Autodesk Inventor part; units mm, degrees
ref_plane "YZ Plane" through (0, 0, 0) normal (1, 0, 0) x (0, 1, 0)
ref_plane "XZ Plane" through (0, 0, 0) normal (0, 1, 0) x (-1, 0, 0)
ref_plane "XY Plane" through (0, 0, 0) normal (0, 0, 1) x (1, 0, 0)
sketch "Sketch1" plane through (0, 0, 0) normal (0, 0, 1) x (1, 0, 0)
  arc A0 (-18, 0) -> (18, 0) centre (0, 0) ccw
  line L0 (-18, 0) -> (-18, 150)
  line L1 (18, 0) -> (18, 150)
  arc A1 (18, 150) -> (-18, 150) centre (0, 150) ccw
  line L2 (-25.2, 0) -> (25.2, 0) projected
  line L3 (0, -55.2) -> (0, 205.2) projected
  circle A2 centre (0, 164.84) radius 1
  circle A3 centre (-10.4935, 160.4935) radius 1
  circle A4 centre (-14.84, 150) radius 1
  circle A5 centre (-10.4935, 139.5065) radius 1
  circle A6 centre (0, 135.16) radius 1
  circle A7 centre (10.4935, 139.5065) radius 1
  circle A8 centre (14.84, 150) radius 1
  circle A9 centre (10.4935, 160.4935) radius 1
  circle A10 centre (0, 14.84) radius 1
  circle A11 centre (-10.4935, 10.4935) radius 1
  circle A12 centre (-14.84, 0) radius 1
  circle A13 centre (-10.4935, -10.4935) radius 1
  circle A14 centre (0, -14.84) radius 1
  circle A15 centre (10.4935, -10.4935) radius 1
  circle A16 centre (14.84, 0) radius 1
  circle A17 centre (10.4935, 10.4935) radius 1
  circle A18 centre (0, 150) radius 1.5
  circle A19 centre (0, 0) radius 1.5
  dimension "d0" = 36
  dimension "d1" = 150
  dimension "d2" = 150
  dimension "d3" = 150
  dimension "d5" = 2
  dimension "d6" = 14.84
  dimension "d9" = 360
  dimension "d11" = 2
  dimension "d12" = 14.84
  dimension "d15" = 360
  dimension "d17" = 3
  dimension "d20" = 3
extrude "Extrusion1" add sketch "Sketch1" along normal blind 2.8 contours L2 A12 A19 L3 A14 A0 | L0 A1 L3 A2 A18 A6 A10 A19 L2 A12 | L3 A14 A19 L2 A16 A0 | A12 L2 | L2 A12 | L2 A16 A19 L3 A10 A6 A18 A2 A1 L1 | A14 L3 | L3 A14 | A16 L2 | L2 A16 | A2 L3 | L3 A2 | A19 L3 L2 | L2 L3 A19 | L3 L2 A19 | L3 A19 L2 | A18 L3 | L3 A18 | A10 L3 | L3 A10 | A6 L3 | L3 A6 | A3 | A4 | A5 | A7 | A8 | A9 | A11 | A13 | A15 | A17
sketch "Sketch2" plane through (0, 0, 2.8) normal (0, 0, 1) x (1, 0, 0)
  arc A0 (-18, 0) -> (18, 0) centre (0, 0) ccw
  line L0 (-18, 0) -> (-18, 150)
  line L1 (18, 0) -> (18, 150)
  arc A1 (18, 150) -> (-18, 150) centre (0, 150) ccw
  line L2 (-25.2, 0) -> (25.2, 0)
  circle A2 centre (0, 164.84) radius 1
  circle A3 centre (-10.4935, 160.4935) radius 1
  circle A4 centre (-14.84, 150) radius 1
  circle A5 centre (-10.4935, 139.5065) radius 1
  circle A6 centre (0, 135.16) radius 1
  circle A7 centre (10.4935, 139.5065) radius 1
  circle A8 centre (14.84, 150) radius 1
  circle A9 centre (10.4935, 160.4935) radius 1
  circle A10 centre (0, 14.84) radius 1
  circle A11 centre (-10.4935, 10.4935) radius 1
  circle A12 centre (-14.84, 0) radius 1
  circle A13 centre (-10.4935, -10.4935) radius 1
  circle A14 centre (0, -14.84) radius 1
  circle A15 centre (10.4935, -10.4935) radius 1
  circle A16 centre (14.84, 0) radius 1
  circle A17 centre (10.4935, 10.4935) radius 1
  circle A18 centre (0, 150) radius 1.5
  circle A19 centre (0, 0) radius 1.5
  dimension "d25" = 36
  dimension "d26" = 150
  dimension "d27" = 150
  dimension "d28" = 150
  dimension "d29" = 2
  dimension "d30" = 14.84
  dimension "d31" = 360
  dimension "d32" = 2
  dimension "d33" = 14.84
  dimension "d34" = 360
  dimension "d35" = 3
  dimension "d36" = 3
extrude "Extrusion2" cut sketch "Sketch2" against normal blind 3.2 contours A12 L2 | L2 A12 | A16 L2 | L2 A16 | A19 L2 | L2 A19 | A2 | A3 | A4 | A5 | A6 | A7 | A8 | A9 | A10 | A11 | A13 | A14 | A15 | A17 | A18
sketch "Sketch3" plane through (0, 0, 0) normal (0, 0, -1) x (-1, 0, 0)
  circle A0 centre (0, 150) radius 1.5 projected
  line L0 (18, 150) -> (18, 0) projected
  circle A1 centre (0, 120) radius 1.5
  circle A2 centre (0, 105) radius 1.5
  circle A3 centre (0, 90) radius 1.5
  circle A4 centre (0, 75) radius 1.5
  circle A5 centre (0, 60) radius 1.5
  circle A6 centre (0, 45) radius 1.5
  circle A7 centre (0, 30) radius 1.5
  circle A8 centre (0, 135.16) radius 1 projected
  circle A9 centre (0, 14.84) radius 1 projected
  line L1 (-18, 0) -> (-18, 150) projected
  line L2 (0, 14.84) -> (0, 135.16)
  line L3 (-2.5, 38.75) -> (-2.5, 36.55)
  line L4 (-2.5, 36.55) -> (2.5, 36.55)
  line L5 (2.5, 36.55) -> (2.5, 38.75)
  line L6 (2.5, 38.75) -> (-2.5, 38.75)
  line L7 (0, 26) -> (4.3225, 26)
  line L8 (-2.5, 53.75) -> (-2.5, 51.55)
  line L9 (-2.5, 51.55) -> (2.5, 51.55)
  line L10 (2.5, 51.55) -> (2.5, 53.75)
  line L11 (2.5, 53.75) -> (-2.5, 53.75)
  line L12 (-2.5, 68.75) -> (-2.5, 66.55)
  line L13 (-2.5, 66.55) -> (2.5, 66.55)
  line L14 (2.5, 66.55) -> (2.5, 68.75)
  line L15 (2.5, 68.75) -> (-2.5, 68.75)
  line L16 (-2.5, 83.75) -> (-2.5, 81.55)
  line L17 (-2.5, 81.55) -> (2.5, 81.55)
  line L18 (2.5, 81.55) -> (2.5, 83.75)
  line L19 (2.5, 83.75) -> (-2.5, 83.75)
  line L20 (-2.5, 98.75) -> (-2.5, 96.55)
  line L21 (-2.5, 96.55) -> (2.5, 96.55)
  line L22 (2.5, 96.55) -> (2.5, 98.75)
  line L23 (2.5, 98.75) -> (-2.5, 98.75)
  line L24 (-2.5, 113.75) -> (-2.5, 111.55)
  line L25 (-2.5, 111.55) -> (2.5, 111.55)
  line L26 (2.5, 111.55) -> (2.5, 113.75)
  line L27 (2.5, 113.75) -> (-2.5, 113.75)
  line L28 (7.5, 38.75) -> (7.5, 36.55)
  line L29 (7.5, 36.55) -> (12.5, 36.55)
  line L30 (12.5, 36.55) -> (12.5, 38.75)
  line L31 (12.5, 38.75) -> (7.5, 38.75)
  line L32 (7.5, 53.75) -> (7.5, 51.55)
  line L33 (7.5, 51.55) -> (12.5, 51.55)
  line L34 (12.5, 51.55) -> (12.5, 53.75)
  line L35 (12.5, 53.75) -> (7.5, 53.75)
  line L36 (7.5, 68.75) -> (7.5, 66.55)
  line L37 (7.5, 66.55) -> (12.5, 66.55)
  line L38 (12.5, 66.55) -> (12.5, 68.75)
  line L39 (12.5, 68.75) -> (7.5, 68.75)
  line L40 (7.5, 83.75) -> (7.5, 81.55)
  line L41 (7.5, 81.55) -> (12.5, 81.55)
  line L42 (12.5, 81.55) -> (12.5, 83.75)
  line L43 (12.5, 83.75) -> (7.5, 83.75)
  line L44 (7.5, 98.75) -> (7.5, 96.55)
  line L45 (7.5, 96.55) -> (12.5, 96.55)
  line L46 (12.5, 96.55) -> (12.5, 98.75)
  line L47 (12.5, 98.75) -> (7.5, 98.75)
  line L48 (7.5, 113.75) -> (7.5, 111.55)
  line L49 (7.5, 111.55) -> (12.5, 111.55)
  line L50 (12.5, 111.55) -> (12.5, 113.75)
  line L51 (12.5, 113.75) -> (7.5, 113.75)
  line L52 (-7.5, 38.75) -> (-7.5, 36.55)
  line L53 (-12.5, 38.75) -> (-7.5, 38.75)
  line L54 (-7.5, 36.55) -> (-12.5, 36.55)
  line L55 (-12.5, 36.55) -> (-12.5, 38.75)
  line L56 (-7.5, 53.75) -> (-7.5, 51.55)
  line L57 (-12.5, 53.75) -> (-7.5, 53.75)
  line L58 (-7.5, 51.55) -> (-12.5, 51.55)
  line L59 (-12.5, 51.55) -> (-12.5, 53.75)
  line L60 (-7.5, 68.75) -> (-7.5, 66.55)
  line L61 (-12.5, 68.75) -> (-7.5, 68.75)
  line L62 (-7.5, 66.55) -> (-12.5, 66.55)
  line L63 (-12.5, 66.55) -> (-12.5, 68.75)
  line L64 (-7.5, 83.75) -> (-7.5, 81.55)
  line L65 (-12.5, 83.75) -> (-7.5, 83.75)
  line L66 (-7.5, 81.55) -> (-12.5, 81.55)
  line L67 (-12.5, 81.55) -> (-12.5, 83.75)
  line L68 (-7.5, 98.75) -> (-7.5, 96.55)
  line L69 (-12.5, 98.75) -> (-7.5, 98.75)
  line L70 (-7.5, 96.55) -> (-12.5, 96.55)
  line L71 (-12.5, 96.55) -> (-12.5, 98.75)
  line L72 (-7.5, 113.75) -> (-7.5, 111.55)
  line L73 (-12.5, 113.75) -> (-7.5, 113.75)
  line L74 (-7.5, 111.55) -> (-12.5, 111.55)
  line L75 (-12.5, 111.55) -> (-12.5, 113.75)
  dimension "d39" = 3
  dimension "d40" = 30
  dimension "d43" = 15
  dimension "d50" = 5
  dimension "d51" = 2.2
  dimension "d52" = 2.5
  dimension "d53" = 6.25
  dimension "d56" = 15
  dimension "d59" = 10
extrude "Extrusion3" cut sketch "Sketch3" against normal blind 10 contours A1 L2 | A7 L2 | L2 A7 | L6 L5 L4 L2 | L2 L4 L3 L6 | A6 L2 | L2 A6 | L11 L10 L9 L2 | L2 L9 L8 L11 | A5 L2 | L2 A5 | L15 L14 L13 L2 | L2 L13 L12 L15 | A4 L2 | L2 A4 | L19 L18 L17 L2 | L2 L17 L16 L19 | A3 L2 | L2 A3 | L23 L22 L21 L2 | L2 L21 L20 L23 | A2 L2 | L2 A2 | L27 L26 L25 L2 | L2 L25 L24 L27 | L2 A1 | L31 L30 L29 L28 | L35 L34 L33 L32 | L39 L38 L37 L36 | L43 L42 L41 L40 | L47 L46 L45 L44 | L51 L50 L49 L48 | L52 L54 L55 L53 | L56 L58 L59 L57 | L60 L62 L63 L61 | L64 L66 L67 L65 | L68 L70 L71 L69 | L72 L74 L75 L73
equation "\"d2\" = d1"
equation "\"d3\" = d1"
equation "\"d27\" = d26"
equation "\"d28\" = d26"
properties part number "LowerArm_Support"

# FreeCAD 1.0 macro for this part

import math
import FreeCAD as App
import Part
import Sketcher
from FreeCAD import Vector

doc = App.newDocument("Part")
body = doc.addObject("PartDesign::Body", "Body")

sketch1 = body.newObject("Sketcher::SketchObject", "Sketch")
sketch1.AttachmentSupport = (doc.getObject("XY_Plane"), [""])
sketch1.MapMode = "FlatFace"
sketch1.addGeometry([
    Part.ArcOfCircle(Part.Circle(Vector(0, 0, 0), Vector(0, 0, 1), 18), math.radians(180), math.radians(360)),
    Part.LineSegment(Vector(18, 0, 0), Vector(18, 150, 0)),
    Part.ArcOfCircle(Part.Circle(Vector(0, 150, 0), Vector(0, 0, 1), 18), math.radians(0), math.radians(180)),
    Part.LineSegment(Vector(-18, 150, 0), Vector(-18, 0, 0)),
], False)
sketch1.addConstraint([
    Sketcher.Constraint("Tangent", 0, 2, 1, 1),
    Sketcher.Constraint("Tangent", 1, 2, 2, 1),
    Sketcher.Constraint("Tangent", 2, 2, 3, 1),
    Sketcher.Constraint("Tangent", 3, 2, 0, 1),
    Sketcher.Constraint("Vertical", 1),
    Sketcher.Constraint("Vertical", 3),
    Sketcher.Constraint("Coincident", 0, 3, -1, 1),
    Sketcher.Constraint("Radius", 0, 18.0),
    Sketcher.Constraint("DistanceY", 1, 1, 1, 2, 150.0),
])
pad1 = body.newObject("PartDesign::Pad", "Pad")
pad1.Profile = sketch1
pad1.Length = 2.8

sketch2 = body.newObject("Sketcher::SketchObject", "Sketch001")
sketch2.AttachmentSupport = (doc.getObject("XY_Plane"), [""])
sketch2.MapMode = "FlatFace"
sketch2.AttachmentOffset = App.Placement(Vector(0, 0, 2.8), App.Rotation())
sketch2.addGeometry([
    Part.Circle(Vector(-14.8, 0, 0), Vector(0, 0, 1), 1),
    Part.Circle(Vector(14.8, 0, 0), Vector(0, 0, 1), 1),
    Part.Circle(Vector(0, 0, 0), Vector(0, 0, 1), 1.5),
    Part.Circle(Vector(0, 164.8, 0), Vector(0, 0, 1), 1),
    Part.Circle(Vector(-10.5, 160.5, 0), Vector(0, 0, 1), 1),
    Part.Circle(Vector(-14.8, 150, 0), Vector(0, 0, 1), 1),
    Part.Circle(Vector(-10.5, 139.5, 0), Vector(0, 0, 1), 1),
    Part.Circle(Vector(0, 135.2, 0), Vector(0, 0, 1), 1),
    Part.Circle(Vector(10.5, 139.5, 0), Vector(0, 0, 1), 1),
    Part.Circle(Vector(14.8, 150, 0), Vector(0, 0, 1), 1),
    Part.Circle(Vector(10.5, 160.5, 0), Vector(0, 0, 1), 1),
    Part.Circle(Vector(0, 14.8, 0), Vector(0, 0, 1), 1),
    Part.Circle(Vector(-10.5, 10.5, 0), Vector(0, 0, 1), 1),
    Part.Circle(Vector(-10.5, -10.5, 0), Vector(0, 0, 1), 1),
    Part.Circle(Vector(0, -14.8, 0), Vector(0, 0, 1), 1),
    Part.Circle(Vector(10.5, -10.5, 0), Vector(0, 0, 1), 1),
    Part.Circle(Vector(10.5, 10.5, 0), Vector(0, 0, 1), 1),
    Part.Circle(Vector(0, 150, 0), Vector(0, 0, 1), 1.5),
], False)
sketch2.addConstraint([
    Sketcher.Constraint("Coincident", 2, 3, -1, 1),
    Sketcher.Constraint("Equal", 0, 1),
    Sketcher.Constraint("Equal", 1, 3),
    Sketcher.Constraint("Equal", 3, 4),
    Sketcher.Constraint("Equal", 4, 5),
    Sketcher.Constraint("Equal", 5, 6),
    Sketcher.Constraint("Equal", 6, 7),
    Sketcher.Constraint("Equal", 7, 8),
    Sketcher.Constraint("Equal", 8, 9),
    Sketcher.Constraint("Equal", 9, 10),
    Sketcher.Constraint("Equal", 10, 11),
    Sketcher.Constraint("Equal", 11, 12),
    Sketcher.Constraint("Equal", 12, 13),
    Sketcher.Constraint("Equal", 13, 14),
    Sketcher.Constraint("Equal", 14, 15),
    Sketcher.Constraint("Equal", 15, 16),
    Sketcher.Constraint("Equal", 2, 17),
    Sketcher.Constraint("Symmetric", 0, 3, 1, 3, -1, 1),
    Sketcher.Constraint("Symmetric", 11, 3, 14, 3, -1, 1),
    Sketcher.Constraint("Symmetric", 12, 3, 15, 3, -1, 1),
    Sketcher.Constraint("Symmetric", 13, 3, 16, 3, -1, 1),
    Sketcher.Constraint("Symmetric", 6, 3, 8, 3, -2),
    Sketcher.Constraint("Symmetric", 5, 3, 9, 3, -2),
    Sketcher.Constraint("Symmetric", 4, 3, 10, 3, -2),
    Sketcher.Constraint("Symmetric", 13, 3, 15, 3, -2),
    Sketcher.Constraint("PointOnObject", 0, 3, -1),
    Sketcher.Constraint("PointOnObject", 3, 3, -2),
    Sketcher.Constraint("PointOnObject", 7, 3, -2),
    Sketcher.Constraint("PointOnObject", 11, 3, -2),
    Sketcher.Constraint("PointOnObject", 17, 3, -2),
    Sketcher.Constraint("Horizontal", 9, 3, 17, 3),
    Sketcher.Constraint("Vertical", 0, 3, 5, 3),
    Sketcher.Constraint("Vertical", 4, 3, 6, 3),
    Sketcher.Constraint("Vertical", 6, 3, 12, 3),
    Sketcher.Constraint("Diameter", 0, 2.0),
    Sketcher.Constraint("Diameter", 2, 3.0),
    Sketcher.Constraint("DistanceY", -1, 1, 5, 3, 150.0),
    Sketcher.Constraint("DistanceX", 0, 3, -1, 1, 14.84),
    Sketcher.Constraint("DistanceY", -1, 1, 11, 3, 14.84),
    Sketcher.Constraint("DistanceY", 5, 3, 3, 3, 14.84),
    Sketcher.Constraint("DistanceY", 7, 3, 5, 3, 14.84),
    Sketcher.Constraint("DistanceY", 6, 3, 4, 3, 20.987),
    Sketcher.Constraint("DistanceX", 6, 3, 8, 3, 20.987),
    Sketcher.Constraint("DistanceY", 13, 3, 12, 3, 20.987),
    Sketcher.Constraint("DistanceY", -1, 1, 4, 3, 160.4935),
])
pocket1 = body.newObject("PartDesign::Pocket", "Pocket")
pocket1.Profile = sketch2
pocket1.Length = 3.2

sketch3 = body.newObject("Sketcher::SketchObject", "Sketch002")
sketch3.AttachmentSupport = (doc.getObject("XY_Plane"), [""])
sketch3.MapMode = "FlatFace"
sketch3.addGeometry([
    Part.Circle(Vector(0, 120, 0), Vector(0, 0, 1), 1.5),
    Part.Circle(Vector(0, 30, 0), Vector(0, 0, 1), 1.5),
    Part.LineSegment(Vector(-2.5, 38.8, 0), Vector(2.5, 38.8, 0)),
    Part.LineSegment(Vector(2.5, 38.8, 0), Vector(2.5, 36.5, 0)),
    Part.LineSegment(Vector(2.5, 36.5, 0), Vector(-2.5, 36.5, 0)),
    Part.LineSegment(Vector(-2.5, 36.5, 0), Vector(-2.5, 38.8, 0)),
    Part.Circle(Vector(0, 45, 0), Vector(0, 0, 1), 1.5),
    Part.LineSegment(Vector(-2.5, 53.8, 0), Vector(2.5, 53.8, 0)),
    Part.LineSegment(Vector(2.5, 53.8, 0), Vector(2.5, 51.5, 0)),
    Part.LineSegment(Vector(2.5, 51.5, 0), Vector(-2.5, 51.5, 0)),
    Part.LineSegment(Vector(-2.5, 51.5, 0), Vector(-2.5, 53.8, 0)),
    Part.Circle(Vector(0, 60, 0), Vector(0, 0, 1), 1.5),
    Part.LineSegment(Vector(-2.5, 68.8, 0), Vector(2.5, 68.8, 0)),
    Part.LineSegment(Vector(2.5, 68.8, 0), Vector(2.5, 66.5, 0)),
    Part.LineSegment(Vector(2.5, 66.5, 0), Vector(-2.5, 66.5, 0)),
    Part.LineSegment(Vector(-2.5, 66.5, 0), Vector(-2.5, 68.8, 0)),
    Part.Circle(Vector(0, 75, 0), Vector(0, 0, 1), 1.5),
    Part.LineSegment(Vector(-2.5, 83.8, 0), Vector(2.5, 83.8, 0)),
    Part.LineSegment(Vector(2.5, 83.8, 0), Vector(2.5, 81.5, 0)),
    Part.LineSegment(Vector(2.5, 81.5, 0), Vector(-2.5, 81.5, 0)),
    Part.LineSegment(Vector(-2.5, 81.5, 0), Vector(-2.5, 83.8, 0)),
    Part.Circle(Vector(0, 90, 0), Vector(0, 0, 1), 1.5),
    Part.LineSegment(Vector(-2.5, 98.8, 0), Vector(2.5, 98.8, 0)),
    Part.LineSegment(Vector(2.5, 98.8, 0), Vector(2.5, 96.5, 0)),
    Part.LineSegment(Vector(2.5, 96.5, 0), Vector(-2.5, 96.5, 0)),
    Part.LineSegment(Vector(-2.5, 96.5, 0), Vector(-2.5, 98.8, 0)),
    Part.Circle(Vector(0, 105, 0), Vector(0, 0, 1), 1.5),
    Part.LineSegment(Vector(-2.5, 113.8, 0), Vector(2.5, 113.8, 0)),
    Part.LineSegment(Vector(2.5, 113.8, 0), Vector(2.5, 111.5, 0)),
    Part.LineSegment(Vector(2.5, 111.5, 0), Vector(-2.5, 111.5, 0)),
    Part.LineSegment(Vector(-2.5, 111.5, 0), Vector(-2.5, 113.8, 0)),
    Part.LineSegment(Vector(-12.5, 38.8, 0), Vector(-7.5, 38.8, 0)),
    Part.LineSegment(Vector(-7.5, 38.8, 0), Vector(-7.5, 36.5, 0)),
    Part.LineSegment(Vector(-7.5, 36.5, 0), Vector(-12.5, 36.5, 0)),
    Part.LineSegment(Vector(-12.5, 36.5, 0), Vector(-12.5, 38.8, 0)),
    Part.LineSegment(Vector(-12.5, 53.8, 0), Vector(-7.5, 53.8, 0)),
    Part.LineSegment(Vector(-7.5, 53.8, 0), Vector(-7.5, 51.5, 0)),
    Part.LineSegment(Vector(-7.5, 51.5, 0), Vector(-12.5, 51.5, 0)),
    Part.LineSegment(Vector(-12.5, 51.5, 0), Vector(-12.5, 53.8, 0)),
    Part.LineSegment(Vector(-12.5, 68.8, 0), Vector(-7.5, 68.8, 0)),
    Part.LineSegment(Vector(-7.5, 68.8, 0), Vector(-7.5, 66.5, 0)),
    Part.LineSegment(Vector(-7.5, 66.5, 0), Vector(-12.5, 66.5, 0)),
    Part.LineSegment(Vector(-12.5, 66.5, 0), Vector(-12.5, 68.8, 0)),
    Part.LineSegment(Vector(-12.5, 83.8, 0), Vector(-7.5, 83.8, 0)),
    Part.LineSegment(Vector(-7.5, 83.8, 0), Vector(-7.5, 81.5, 0)),
    Part.LineSegment(Vector(-7.5, 81.5, 0), Vector(-12.5, 81.5, 0)),
    Part.LineSegment(Vector(-12.5, 81.5, 0), Vector(-12.5, 83.8, 0)),
    Part.LineSegment(Vector(-12.5, 98.8, 0), Vector(-7.5, 98.8, 0)),
    Part.LineSegment(Vector(-7.5, 98.8, 0), Vector(-7.5, 96.5, 0)),
    Part.LineSegment(Vector(-7.5, 96.5, 0), Vector(-12.5, 96.5, 0)),
    Part.LineSegment(Vector(-12.5, 96.5, 0), Vector(-12.5, 98.8, 0)),
    Part.LineSegment(Vector(-12.5, 113.8, 0), Vector(-7.5, 113.8, 0)),
    Part.LineSegment(Vector(-7.5, 113.8, 0), Vector(-7.5, 111.5, 0)),
    Part.LineSegment(Vector(-7.5, 111.5, 0), Vector(-12.5, 111.5, 0)),
    Part.LineSegment(Vector(-12.5, 111.5, 0), Vector(-12.5, 113.8, 0)),
    Part.LineSegment(Vector(7.5, 36.5, 0), Vector(7.5, 38.8, 0)),
    Part.LineSegment(Vector(7.5, 38.8, 0), Vector(12.5, 38.8, 0)),
    Part.LineSegment(Vector(12.5, 38.8, 0), Vector(12.5, 36.5, 0)),
    Part.LineSegment(Vector(12.5, 36.5, 0), Vector(7.5, 36.5, 0)),
    Part.LineSegment(Vector(7.5, 51.5, 0), Vector(7.5, 53.8, 0)),
    Part.LineSegment(Vector(7.5, 53.8, 0), Vector(12.5, 53.8, 0)),
    Part.LineSegment(Vector(12.5, 53.8, 0), Vector(12.5, 51.5, 0)),
    Part.LineSegment(Vector(12.5, 51.5, 0), Vector(7.5, 51.5, 0)),
    Part.LineSegment(Vector(7.5, 66.5, 0), Vector(7.5, 68.8, 0)),
    Part.LineSegment(Vector(7.5, 68.8, 0), Vector(12.5, 68.8, 0)),
    Part.LineSegment(Vector(12.5, 68.8, 0), Vector(12.5, 66.5, 0)),
    Part.LineSegment(Vector(12.5, 66.5, 0), Vector(7.5, 66.5, 0)),
    Part.LineSegment(Vector(7.5, 81.5, 0), Vector(7.5, 83.8, 0)),
    Part.LineSegment(Vector(7.5, 83.8, 0), Vector(12.5, 83.8, 0)),
    Part.LineSegment(Vector(12.5, 83.8, 0), Vector(12.5, 81.5, 0)),
    Part.LineSegment(Vector(12.5, 81.5, 0), Vector(7.5, 81.5, 0)),
    Part.LineSegment(Vector(7.5, 96.5, 0), Vector(7.5, 98.8, 0)),
    Part.LineSegment(Vector(7.5, 98.8, 0), Vector(12.5, 98.8, 0)),
    Part.LineSegment(Vector(12.5, 98.8, 0), Vector(12.5, 96.5, 0)),
    Part.LineSegment(Vector(12.5, 96.5, 0), Vector(7.5, 96.5, 0)),
    Part.LineSegment(Vector(7.5, 111.5, 0), Vector(7.5, 113.8, 0)),
    Part.LineSegment(Vector(7.5, 113.8, 0), Vector(12.5, 113.8, 0)),
    Part.LineSegment(Vector(12.5, 113.8, 0), Vector(12.5, 111.5, 0)),
    Part.LineSegment(Vector(12.5, 111.5, 0), Vector(7.5, 111.5, 0)),
], False)
sketch3.addConstraint([
    Sketcher.Constraint("Coincident", 2, 2, 3, 1),
    Sketcher.Constraint("Coincident", 3, 2, 4, 1),
    Sketcher.Constraint("Coincident", 4, 2, 5, 1),
    Sketcher.Constraint("Coincident", 5, 2, 2, 1),
    Sketcher.Constraint("Coincident", 7, 2, 8, 1),
    Sketcher.Constraint("Coincident", 8, 2, 9, 1),
    Sketcher.Constraint("Coincident", 9, 2, 10, 1),
    Sketcher.Constraint("Coincident", 10, 2, 7, 1),
    Sketcher.Constraint("Coincident", 12, 2, 13, 1),
    Sketcher.Constraint("Coincident", 13, 2, 14, 1),
    Sketcher.Constraint("Coincident", 14, 2, 15, 1),
    Sketcher.Constraint("Coincident", 15, 2, 12, 1),
    Sketcher.Constraint("Coincident", 17, 2, 18, 1),
    Sketcher.Constraint("Coincident", 18, 2, 19, 1),
    Sketcher.Constraint("Coincident", 19, 2, 20, 1),
    Sketcher.Constraint("Coincident", 20, 2, 17, 1),
    Sketcher.Constraint("Coincident", 22, 2, 23, 1),
    Sketcher.Constraint("Coincident", 23, 2, 24, 1),
    Sketcher.Constraint("Coincident", 24, 2, 25, 1),
    Sketcher.Constraint("Coincident", 25, 2, 22, 1),
    Sketcher.Constraint("Coincident", 27, 2, 28, 1),
    Sketcher.Constraint("Coincident", 28, 2, 29, 1),
    Sketcher.Constraint("Coincident", 29, 2, 30, 1),
    Sketcher.Constraint("Coincident", 30, 2, 27, 1),
    Sketcher.Constraint("Coincident", 31, 2, 32, 1),
    Sketcher.Constraint("Coincident", 32, 2, 33, 1),
    Sketcher.Constraint("Coincident", 33, 2, 34, 1),
    Sketcher.Constraint("Coincident", 34, 2, 31, 1),
    Sketcher.Constraint("Coincident", 35, 2, 36, 1),
    Sketcher.Constraint("Coincident", 36, 2, 37, 1),
    Sketcher.Constraint("Coincident", 37, 2, 38, 1),
    Sketcher.Constraint("Coincident", 38, 2, 35, 1),
    Sketcher.Constraint("Coincident", 39, 2, 40, 1),
    Sketcher.Constraint("Coincident", 40, 2, 41, 1),
    Sketcher.Constraint("Coincident", 41, 2, 42, 1),
    Sketcher.Constraint("Coincident", 42, 2, 39, 1),
    Sketcher.Constraint("Coincident", 43, 2, 44, 1),
    Sketcher.Constraint("Coincident", 44, 2, 45, 1),
    Sketcher.Constraint("Coincident", 45, 2, 46, 1),
    Sketcher.Constraint("Coincident", 46, 2, 43, 1),
    Sketcher.Constraint("Coincident", 47, 2, 48, 1),
    Sketcher.Constraint("Coincident", 48, 2, 49, 1),
    Sketcher.Constraint("Coincident", 49, 2, 50, 1),
    Sketcher.Constraint("Coincident", 50, 2, 47, 1),
    Sketcher.Constraint("Coincident", 51, 2, 52, 1),
    Sketcher.Constraint("Coincident", 52, 2, 53, 1),
    Sketcher.Constraint("Coincident", 53, 2, 54, 1),
    Sketcher.Constraint("Coincident", 54, 2, 51, 1),
    Sketcher.Constraint("Coincident", 55, 2, 56, 1),
    Sketcher.Constraint("Coincident", 56, 2, 57, 1),
    Sketcher.Constraint("Coincident", 57, 2, 58, 1),
    Sketcher.Constraint("Coincident", 58, 2, 55, 1),
    Sketcher.Constraint("Coincident", 59, 2, 60, 1),
    Sketcher.Constraint("Coincident", 60, 2, 61, 1),
    Sketcher.Constraint("Coincident", 61, 2, 62, 1),
    Sketcher.Constraint("Coincident", 62, 2, 59, 1),
    Sketcher.Constraint("Coincident", 63, 2, 64, 1),
    Sketcher.Constraint("Coincident", 64, 2, 65, 1),
    Sketcher.Constraint("Coincident", 65, 2, 66, 1),
    Sketcher.Constraint("Coincident", 66, 2, 63, 1),
    Sketcher.Constraint("Coincident", 67, 2, 68, 1),
    Sketcher.Constraint("Coincident", 68, 2, 69, 1),
    Sketcher.Constraint("Coincident", 69, 2, 70, 1),
    Sketcher.Constraint("Coincident", 70, 2, 67, 1),
    Sketcher.Constraint("Coincident", 71, 2, 72, 1),
    Sketcher.Constraint("Coincident", 72, 2, 73, 1),
    Sketcher.Constraint("Coincident", 73, 2, 74, 1),
    Sketcher.Constraint("Coincident", 74, 2, 71, 1),
    Sketcher.Constraint("Coincident", 75, 2, 76, 1),
    Sketcher.Constraint("Coincident", 76, 2, 77, 1),
    Sketcher.Constraint("Coincident", 77, 2, 78, 1),
    Sketcher.Constraint("Coincident", 78, 2, 75, 1),
    Sketcher.Constraint("Horizontal", 2),
    Sketcher.Constraint("Vertical", 3),
    Sketcher.Constraint("Horizontal", 4),
    Sketcher.Constraint("Vertical", 5),
    Sketcher.Constraint("Horizontal", 7),
    Sketcher.Constraint("Vertical", 8),
    Sketcher.Constraint("Horizontal", 9),
    Sketcher.Constraint("Vertical", 10),
    Sketcher.Constraint("Horizontal", 12),
    Sketcher.Constraint("Vertical", 13),
    Sketcher.Constraint("Horizontal", 14),
    Sketcher.Constraint("Vertical", 15),
    Sketcher.Constraint("Horizontal", 17),
    Sketcher.Constraint("Vertical", 18),
    Sketcher.Constraint("Horizontal", 19),
    Sketcher.Constraint("Vertical", 20),
    Sketcher.Constraint("Horizontal", 22),
    Sketcher.Constraint("Vertical", 23),
    Sketcher.Constraint("Horizontal", 24),
    Sketcher.Constraint("Vertical", 25),
    Sketcher.Constraint("Horizontal", 27),
    Sketcher.Constraint("Vertical", 28),
    Sketcher.Constraint("Horizontal", 29),
    Sketcher.Constraint("Vertical", 30),
    Sketcher.Constraint("Horizontal", 31),
    Sketcher.Constraint("Vertical", 32),
    Sketcher.Constraint("Horizontal", 33),
    Sketcher.Constraint("Vertical", 34),
    Sketcher.Constraint("Horizontal", 35),
    Sketcher.Constraint("Vertical", 36),
    Sketcher.Constraint("Horizontal", 37),
    Sketcher.Constraint("Vertical", 38),
    Sketcher.Constraint("Horizontal", 39),
    Sketcher.Constraint("Vertical", 40),
    Sketcher.Constraint("Horizontal", 41),
    Sketcher.Constraint("Vertical", 42),
    Sketcher.Constraint("Horizontal", 43),
    Sketcher.Constraint("Vertical", 44),
    Sketcher.Constraint("Horizontal", 45),
    Sketcher.Constraint("Vertical", 46),
    Sketcher.Constraint("Horizontal", 47),
    Sketcher.Constraint("Vertical", 48),
    Sketcher.Constraint("Horizontal", 49),
    Sketcher.Constraint("Vertical", 50),
    Sketcher.Constraint("Horizontal", 51),
    Sketcher.Constraint("Vertical", 52),
    Sketcher.Constraint("Horizontal", 53),
    Sketcher.Constraint("Vertical", 54),
    Sketcher.Constraint("Vertical", 55),
    Sketcher.Constraint("Horizontal", 56),
    Sketcher.Constraint("Vertical", 57),
    Sketcher.Constraint("Horizontal", 58),
    Sketcher.Constraint("Vertical", 59),
    Sketcher.Constraint("Horizontal", 60),
    Sketcher.Constraint("Vertical", 61),
    Sketcher.Constraint("Horizontal", 62),
    Sketcher.Constraint("Vertical", 63),
    Sketcher.Constraint("Horizontal", 64),
    Sketcher.Constraint("Vertical", 65),
    Sketcher.Constraint("Horizontal", 66),
    Sketcher.Constraint("Vertical", 67),
    Sketcher.Constraint("Horizontal", 68),
    Sketcher.Constraint("Vertical", 69),
    Sketcher.Constraint("Horizontal", 70),
    Sketcher.Constraint("Vertical", 71),
    Sketcher.Constraint("Horizontal", 72),
    Sketcher.Constraint("Vertical", 73),
    Sketcher.Constraint("Horizontal", 74),
    Sketcher.Constraint("Vertical", 75),
    Sketcher.Constraint("Horizontal", 76),
    Sketcher.Constraint("Vertical", 77),
    Sketcher.Constraint("Horizontal", 78),
    Sketcher.Constraint("Equal", 0, 1),
    Sketcher.Constraint("Equal", 1, 6),
    Sketcher.Constraint("Equal", 6, 11),
    Sketcher.Constraint("Equal", 11, 16),
    Sketcher.Constraint("Equal", 16, 21),
    Sketcher.Constraint("Equal", 21, 26),
    Sketcher.Constraint("Symmetric", 31, 2, 55, 2, -2),
    Sketcher.Constraint("Symmetric", 33, 2, 57, 2, -2),
    Sketcher.Constraint("Symmetric", 35, 2, 59, 2, -2),
    Sketcher.Constraint("Symmetric", 37, 2, 61, 2, -2),
    Sketcher.Constraint("Symmetric", 39, 2, 63, 2, -2),
    Sketcher.Constraint("Symmetric", 41, 2, 65, 2, -2),
    Sketcher.Constraint("Symmetric", 43, 2, 67, 2, -2),
    Sketcher.Constraint("Symmetric", 45, 2, 69, 2, -2),
    Sketcher.Constraint("Symmetric", 47, 2, 71, 2, -2),
    Sketcher.Constraint("Symmetric", 49, 2, 73, 2, -2),
    Sketcher.Constraint("Symmetric", 51, 2, 75, 2, -2),
    Sketcher.Constraint("Symmetric", 53, 2, 77, 2, -2),
    Sketcher.Constraint("PointOnObject", 0, 3, -2),
    Sketcher.Constraint("PointOnObject", 1, 3, -2),
    Sketcher.Constraint("PointOnObject", 6, 3, -2),
    Sketcher.Constraint("PointOnObject", 11, 3, -2),
    Sketcher.Constraint("PointOnObject", 16, 3, -2),
    Sketcher.Constraint("PointOnObject", 21, 3, -2),
    Sketcher.Constraint("PointOnObject", 26, 3, -2),
    Sketcher.Constraint("Horizontal", 5, 2, 31, 2),
    Sketcher.Constraint("Horizontal", 4, 2, 32, 2),
    Sketcher.Constraint("Horizontal", 10, 2, 35, 2),
    Sketcher.Constraint("Horizontal", 9, 2, 36, 2),
    Sketcher.Constraint("Horizontal", 15, 2, 39, 2),
    Sketcher.Constraint("Horizontal", 14, 2, 40, 2),
    Sketcher.Constraint("Horizontal", 20, 2, 43, 2),
    Sketcher.Constraint("Horizontal", 19, 2, 44, 2),
    Sketcher.Constraint("Horizontal", 25, 2, 47, 2),
    Sketcher.Constraint("Horizontal", 24, 2, 48, 2),
    Sketcher.Constraint("Horizontal", 30, 2, 51, 2),
    Sketcher.Constraint("Horizontal", 29, 2, 52, 2),
    Sketcher.Constraint("Vertical", 3, 2, 7, 2),
    Sketcher.Constraint("Vertical", 5, 2, 9, 2),
    Sketcher.Constraint("Vertical", 8, 2, 12, 2),
    Sketcher.Constraint("Vertical", 10, 2, 14, 2),
    Sketcher.Constraint("Vertical", 13, 2, 17, 2),
    Sketcher.Constraint("Vertical", 15, 2, 19, 2),
    Sketcher.Constraint("Vertical", 18, 2, 22, 2),
    Sketcher.Constraint("Vertical", 20, 2, 24, 2),
    Sketcher.Constraint("Vertical", 23, 2, 27, 2),
    Sketcher.Constraint("Vertical", 25, 2, 29, 2),
    Sketcher.Constraint("Vertical", 32, 2, 35, 2),
    Sketcher.Constraint("Vertical", 34, 2, 37, 2),
    Sketcher.Constraint("Vertical", 36, 2, 39, 2),
    Sketcher.Constraint("Vertical", 38, 2, 41, 2),
    Sketcher.Constraint("Vertical", 40, 2, 43, 2),
    Sketcher.Constraint("Vertical", 42, 2, 45, 2),
    Sketcher.Constraint("Vertical", 44, 2, 47, 2),
    Sketcher.Constraint("Vertical", 46, 2, 49, 2),
    Sketcher.Constraint("Vertical", 48, 2, 51, 2),
    Sketcher.Constraint("Vertical", 50, 2, 53, 2),
    Sketcher.Constraint("Equal", 29, 31),
    Sketcher.Constraint("Equal", 5, 8),
    Sketcher.Constraint("Equal", 10, 13),
    Sketcher.Constraint("Equal", 15, 18),
    Sketcher.Constraint("Equal", 20, 23),
    Sketcher.Constraint("Equal", 25, 28),
    Sketcher.Constraint("Diameter", 0, 3.0),
    Sketcher.Constraint("DistanceX", 2, 1, 2, 2, 5.0),
    Sketcher.Constraint("DistanceY", 3, 2, 3, 1, 2.2),
    Sketcher.Constraint("DistanceY", -1, 1, 1, 3, 30.0),
    Sketcher.Constraint("DistanceX", -1, 1, 2, 2, 2.5),
    Sketcher.Constraint("DistanceY", -1, 1, 0, 3, 120.0),
    Sketcher.Constraint("DistanceY", -1, 1, 6, 3, 45.0),
    Sketcher.Constraint("DistanceY", -1, 1, 11, 3, 60.0),
    Sketcher.Constraint("DistanceY", -1, 1, 16, 3, 75.0),
    Sketcher.Constraint("DistanceY", -1, 1, 21, 3, 90.0),
    Sketcher.Constraint("DistanceY", -1, 1, 26, 3, 105.0),
    Sketcher.Constraint("DistanceX", 31, 2, -1, 1, 7.5),
    Sketcher.Constraint("DistanceY", -1, 1, 2, 2, 38.75),
    Sketcher.Constraint("DistanceY", -1, 1, 7, 2, 53.75),
    Sketcher.Constraint("DistanceY", -1, 1, 12, 2, 68.75),
    Sketcher.Constraint("DistanceY", -1, 1, 17, 2, 83.75),
    Sketcher.Constraint("DistanceY", -1, 1, 22, 2, 98.75),
    Sketcher.Constraint("DistanceY", -1, 1, 27, 2, 113.75),
])
pocket2 = body.newObject("PartDesign::Pocket", "Pocket001")
pocket2.Profile = sketch3
pocket2.Length = 10
pocket2.Reversed = True

doc.recompute()
